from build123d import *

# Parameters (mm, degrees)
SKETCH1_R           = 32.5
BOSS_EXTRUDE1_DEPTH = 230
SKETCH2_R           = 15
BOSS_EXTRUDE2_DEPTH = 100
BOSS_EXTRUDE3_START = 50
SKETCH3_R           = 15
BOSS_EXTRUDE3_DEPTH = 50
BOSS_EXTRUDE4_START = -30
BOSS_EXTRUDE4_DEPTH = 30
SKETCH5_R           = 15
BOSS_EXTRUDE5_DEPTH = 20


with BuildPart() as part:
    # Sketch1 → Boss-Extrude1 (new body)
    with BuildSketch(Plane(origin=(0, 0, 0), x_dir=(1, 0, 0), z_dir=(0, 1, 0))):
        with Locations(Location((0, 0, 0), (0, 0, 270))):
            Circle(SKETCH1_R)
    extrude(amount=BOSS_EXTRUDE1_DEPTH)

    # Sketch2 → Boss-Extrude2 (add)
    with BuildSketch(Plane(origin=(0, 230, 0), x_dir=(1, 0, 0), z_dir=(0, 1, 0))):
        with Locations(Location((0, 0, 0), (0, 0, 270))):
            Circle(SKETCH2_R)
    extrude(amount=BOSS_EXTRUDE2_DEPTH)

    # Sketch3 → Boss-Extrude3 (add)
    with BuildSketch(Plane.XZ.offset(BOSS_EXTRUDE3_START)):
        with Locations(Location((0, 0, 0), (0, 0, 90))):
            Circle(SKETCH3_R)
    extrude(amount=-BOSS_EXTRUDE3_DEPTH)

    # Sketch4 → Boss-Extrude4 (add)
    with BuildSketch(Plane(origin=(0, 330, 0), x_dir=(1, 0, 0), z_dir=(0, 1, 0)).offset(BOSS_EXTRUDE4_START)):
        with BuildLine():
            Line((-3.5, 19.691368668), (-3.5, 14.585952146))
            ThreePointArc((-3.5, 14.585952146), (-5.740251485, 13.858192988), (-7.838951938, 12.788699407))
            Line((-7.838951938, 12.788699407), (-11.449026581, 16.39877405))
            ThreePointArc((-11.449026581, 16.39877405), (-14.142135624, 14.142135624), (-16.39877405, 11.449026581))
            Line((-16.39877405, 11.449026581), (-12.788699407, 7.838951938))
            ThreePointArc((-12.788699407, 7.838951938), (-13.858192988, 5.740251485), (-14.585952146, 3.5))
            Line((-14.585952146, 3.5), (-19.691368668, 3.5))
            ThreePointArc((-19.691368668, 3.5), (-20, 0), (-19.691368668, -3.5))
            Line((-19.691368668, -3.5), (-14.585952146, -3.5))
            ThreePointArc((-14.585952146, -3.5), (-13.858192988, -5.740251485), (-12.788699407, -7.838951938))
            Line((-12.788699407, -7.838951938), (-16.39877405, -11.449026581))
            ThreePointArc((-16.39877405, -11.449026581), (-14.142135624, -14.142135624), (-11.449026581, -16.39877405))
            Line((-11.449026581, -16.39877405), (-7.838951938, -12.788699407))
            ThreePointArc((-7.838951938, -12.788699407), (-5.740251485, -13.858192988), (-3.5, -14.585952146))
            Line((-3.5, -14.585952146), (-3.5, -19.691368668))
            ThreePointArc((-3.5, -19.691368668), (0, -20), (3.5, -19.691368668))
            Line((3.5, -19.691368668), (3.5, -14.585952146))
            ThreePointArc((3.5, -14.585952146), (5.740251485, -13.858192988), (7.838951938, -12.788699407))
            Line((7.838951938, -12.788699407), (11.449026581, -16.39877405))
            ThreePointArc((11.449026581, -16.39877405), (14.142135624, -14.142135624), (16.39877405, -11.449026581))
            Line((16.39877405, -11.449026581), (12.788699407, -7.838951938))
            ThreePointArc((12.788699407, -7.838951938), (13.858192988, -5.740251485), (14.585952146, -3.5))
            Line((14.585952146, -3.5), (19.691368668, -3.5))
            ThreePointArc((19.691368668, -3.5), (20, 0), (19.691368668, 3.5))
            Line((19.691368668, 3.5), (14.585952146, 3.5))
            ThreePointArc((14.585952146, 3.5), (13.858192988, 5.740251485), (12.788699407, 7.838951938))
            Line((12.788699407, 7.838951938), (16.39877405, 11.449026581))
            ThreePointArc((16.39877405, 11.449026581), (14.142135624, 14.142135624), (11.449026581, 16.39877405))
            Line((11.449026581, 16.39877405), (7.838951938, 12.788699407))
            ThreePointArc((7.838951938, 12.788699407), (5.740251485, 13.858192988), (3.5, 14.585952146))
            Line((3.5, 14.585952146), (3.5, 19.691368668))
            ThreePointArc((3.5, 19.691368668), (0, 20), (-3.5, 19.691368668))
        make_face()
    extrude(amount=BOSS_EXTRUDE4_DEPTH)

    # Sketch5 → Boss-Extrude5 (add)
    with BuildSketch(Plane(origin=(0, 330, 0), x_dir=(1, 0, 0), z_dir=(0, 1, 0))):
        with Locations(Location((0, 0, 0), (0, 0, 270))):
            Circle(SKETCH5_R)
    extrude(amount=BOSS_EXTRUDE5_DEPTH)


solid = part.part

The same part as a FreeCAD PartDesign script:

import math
import FreeCAD as App
import Part
import Sketcher
Q = App.Units.Quantity

doc = App.newDocument("Part")
params = doc.addObject("Spreadsheet::Sheet", "Params")
for row, (alias, value) in enumerate([
    ("sketch1_diameter", "65 mm"),
    ("pad1_length", "230 mm"),
    ("sketch2_diameter", "30 mm"),
    ("pad2_length", "100 mm"),
    ("sketch3_diameter", "30 mm"),
    ("pad3_length", "50 mm"),
    ("sketch4_radius", "15 mm"),
    ("sketch4_radius2", "20 mm"),
    ("pad4_length", "30 mm"),
    ("sketch5_diameter", "30 mm"),
    ("pad5_length", "20 mm"),
], start=1):
    params.set(f"A{row}", alias)
    params.set(f"B{row}", "=" + value)
    params.setAlias(f"B{row}", alias)

body = doc.addObject("PartDesign::Body", "Body")

# Sketch on XZ plane
sketch1 = body.newObject("Sketcher::SketchObject", "Sketch")
sketch1.AttachmentSupport = (doc.getObject("XZ_Plane"), [""])
sketch1.MapMode = "FlatFace"
sketch1.addGeometry(Part.Circle(App.Vector(0, 0, 0), App.Vector(0, 0, 1), 32.5), False)
sketch1.addConstraint(Sketcher.Constraint("Coincident", 0, 3, -1, 1))
sketch1.addConstraint(Sketcher.Constraint("Diameter", 0, Q("65 mm")))
sketch1.setExpression("Constraints[1]", "Params.sketch1_diameter")
pad1 = body.newObject("PartDesign::Pad", "Pad")
pad1.Profile = sketch1
pad1.setExpression("Length", "Params.pad1_length")
pad1.Reversed = True

# Sketch on XZ plane
sketch2 = body.newObject("Sketcher::SketchObject", "Sketch001")
sketch2.AttachmentSupport = (doc.getObject("XZ_Plane"), [""])
sketch2.MapMode = "FlatFace"
sketch2.AttachmentOffset = App.Placement(App.Vector(0, 0, -230), App.Rotation())
sketch2.addGeometry(Part.Circle(App.Vector(0, 0, 0), App.Vector(0, 0, 1), 15), False)
sketch2.addConstraint(Sketcher.Constraint("Coincident", 0, 3, -1, 1))
sketch2.addConstraint(Sketcher.Constraint("Diameter", 0, Q("30 mm")))
sketch2.setExpression("Constraints[1]", "Params.sketch2_diameter")
pad2 = body.newObject("PartDesign::Pad", "Pad001")
pad2.Profile = sketch2
pad2.setExpression("Length", "Params.pad2_length")
pad2.Reversed = True

# Sketch on XZ plane
sketch3 = body.newObject("Sketcher::SketchObject", "Sketch002")
sketch3.AttachmentSupport = (doc.getObject("XZ_Plane"), [""])
sketch3.MapMode = "FlatFace"
sketch3.AttachmentOffset = App.Placement(App.Vector(0, 0, 50), App.Rotation())
sketch3.addGeometry(Part.Circle(App.Vector(0, 0, 0), App.Vector(0, 0, 1), 15), False)
sketch3.addConstraint(Sketcher.Constraint("Coincident", 0, 3, -1, 1))
sketch3.addConstraint(Sketcher.Constraint("Diameter", 0, Q("30 mm")))
sketch3.setExpression("Constraints[1]", "Params.sketch3_diameter")
pad3 = body.newObject("PartDesign::Pad", "Pad002")
pad3.Profile = sketch3
pad3.setExpression("Length", "Params.pad3_length")
pad3.Reversed = True

# Sketch on XZ plane
sketch4 = body.newObject("Sketcher::SketchObject", "Sketch003")
sketch4.AttachmentSupport = (doc.getObject("XZ_Plane"), [""])
sketch4.MapMode = "FlatFace"
sketch4.AttachmentOffset = App.Placement(App.Vector(0, 0, -300), App.Rotation())
sketch4.addGeometry(Part.LineSegment(App.Vector(-3.5, -19.691369, 0), App.Vector(-3.5, -14.585952, 0)), False)
sketch4.addGeometry(Part.ArcOfCircle(Part.Circle(App.Vector(0, 0, 0), App.Vector(0, 0, 1), 15), math.radians(-121.506601), math.radians(-103.493399)), False)
sketch4.addGeometry(Part.LineSegment(App.Vector(-7.838952, -12.788699, 0), App.Vector(-11.449027, -16.398774, 0)), False)
sketch4.addGeometry(Part.ArcOfCircle(Part.Circle(App.Vector(0, 0, 0), App.Vector(0, 0, 1), 20), math.radians(-145.078658), math.radians(-124.921342)), False)
sketch4.addGeometry(Part.LineSegment(App.Vector(-16.398774, -11.449027, 0), App.Vector(-12.788699, -7.838952, 0)), False)
sketch4.addGeometry(Part.ArcOfCircle(Part.Circle(App.Vector(0, 0, 0), App.Vector(0, 0, 1), 15), math.radians(-166.506601), math.radians(-148.493399)), False)
sketch4.addGeometry(Part.LineSegment(App.Vector(-14.585952, -3.5, 0), App.Vector(-19.691369, -3.5, 0)), False)
sketch4.addGeometry(Part.ArcOfCircle(Part.Circle(App.Vector(0, 0, 0), App.Vector(0, 0, 1), 20), math.radians(169.921342), math.radians(190.078658)), False)
sketch4.addGeometry(Part.LineSegment(App.Vector(-19.691369, 3.5, 0), App.Vector(-14.585952, 3.5, 0)), False)
sketch4.addGeometry(Part.ArcOfCircle(Part.Circle(App.Vector(0, 0, 0), App.Vector(0, 0, 1), 15), math.radians(148.493399), math.radians(166.506601)), False)
sketch4.addGeometry(Part.LineSegment(App.Vector(-12.788699, 7.838952, 0), App.Vector(-16.398774, 11.449027, 0)), False)
sketch4.addGeometry(Part.ArcOfCircle(Part.Circle(App.Vector(0, 0, 0), App.Vector(0, 0, 1), 20), math.radians(124.921342), math.radians(145.078658)), False)
sketch4.addGeometry(Part.LineSegment(App.Vector(-11.449027, 16.398774, 0), App.Vector(-7.838952, 12.788699, 0)), False)
sketch4.addGeometry(Part.ArcOfCircle(Part.Circle(App.Vector(0, 0, 0), App.Vector(0, 0, 1), 15), math.radians(103.493399), math.radians(121.506601)), False)
sketch4.addGeometry(Part.LineSegment(App.Vector(-3.5, 14.585952, 0), App.Vector(-3.5, 19.691369, 0)), False)
sketch4.addGeometry(Part.ArcOfCircle(Part.Circle(App.Vector(0, 0, 0), App.Vector(0, 0, 1), 20), math.radians(79.921342), math.radians(100.078658)), False)
sketch4.addGeometry(Part.LineSegment(App.Vector(3.5, 19.691369, 0), App.Vector(3.5, 14.585952, 0)), False)
sketch4.addGeometry(Part.ArcOfCircle(Part.Circle(App.Vector(0, 0, 0), App.Vector(0, 0, 1), 15), math.radians(58.493399), math.radians(76.506601)), False)
sketch4.addGeometry(Part.LineSegment(App.Vector(7.838952, 12.788699, 0), App.Vector(11.449027, 16.398774, 0)), False)
sketch4.addGeometry(Part.ArcOfCircle(Part.Circle(App.Vector(0, 0, 0), App.Vector(0, 0, 1), 20), math.radians(34.921342), math.radians(55.078658)), False)
sketch4.addGeometry(Part.LineSegment(App.Vector(16.398774, 11.449027, 0), App.Vector(12.788699, 7.838952, 0)), False)
sketch4.addGeometry(Part.ArcOfCircle(Part.Circle(App.Vector(0, 0, 0), App.Vector(0, 0, 1), 15), math.radians(13.493399), math.radians(31.506601)), False)
sketch4.addGeometry(Part.LineSegment(App.Vector(14.585952, 3.5, 0), App.Vector(19.691369, 3.5, 0)), False)
sketch4.addGeometry(Part.ArcOfCircle(Part.Circle(App.Vector(0, 0, 0), App.Vector(0, 0, 1), 20), math.radians(-10.078658), math.radians(10.078658)), False)
sketch4.addGeometry(Part.LineSegment(App.Vector(19.691369, -3.5, 0), App.Vector(14.585952, -3.5, 0)), False)
sketch4.addGeometry(Part.ArcOfCircle(Part.Circle(App.Vector(0, 0, 0), App.Vector(0, 0, 1), 15), math.radians(-31.506601), math.radians(-13.493399)), False)
sketch4.addGeometry(Part.LineSegment(App.Vector(12.788699, -7.838952, 0), App.Vector(16.398774, -11.449027, 0)), False)
sketch4.addGeometry(Part.ArcOfCircle(Part.Circle(App.Vector(0, 0, 0), App.Vector(0, 0, 1), 20), math.radians(-55.078658), math.radians(-34.921342)), False)
sketch4.addGeometry(Part.LineSegment(App.Vector(11.449027, -16.398774, 0), App.Vector(7.838952, -12.788699, 0)), False)
sketch4.addGeometry(Part.ArcOfCircle(Part.Circle(App.Vector(0, 0, 0), App.Vector(0, 0, 1), 15), math.radians(-76.506601), math.radians(-58.493399)), False)
sketch4.addGeometry(Part.LineSegment(App.Vector(3.5, -14.585952, 0), App.Vector(3.5, -19.691369, 0)), False)
sketch4.addGeometry(Part.ArcOfCircle(Part.Circle(App.Vector(0, 0, 0), App.Vector(0, 0, 1), 20), math.radians(-100.078658), math.radians(-79.921342)), False)
sketch4.addConstraint(Sketcher.Constraint("Coincident", 0, 2, 1, 2))
sketch4.addConstraint(Sketcher.Constraint("Coincident", 1, 1, 2, 1))
sketch4.addConstraint(Sketcher.Constraint("Coincident", 2, 2, 3, 2))
sketch4.addConstraint(Sketcher.Constraint("Coincident", 3, 1, 4, 1))
sketch4.addConstraint(Sketcher.Constraint("Coincident", 4, 2, 5, 2))
sketch4.addConstraint(Sketcher.Constraint("Coincident", 5, 1, 6, 1))
sketch4.addConstraint(Sketcher.Constraint("Coincident", 6, 2, 7, 2))
sketch4.addConstraint(Sketcher.Constraint("Coincident", 7, 1, 8, 1))
sketch4.addConstraint(Sketcher.Constraint("Coincident", 8, 2, 9, 2))
sketch4.addConstraint(Sketcher.Constraint("Coincident", 9, 1, 10, 1))
sketch4.addConstraint(Sketcher.Constraint("Coincident", 10, 2, 11, 2))
sketch4.addConstraint(Sketcher.Constraint("Coincident", 11, 1, 12, 1))
sketch4.addConstraint(Sketcher.Constraint("Coincident", 12, 2, 13, 2))
sketch4.addConstraint(Sketcher.Constraint("Coincident", 13, 1, 14, 1))
sketch4.addConstraint(Sketcher.Constraint("Coincident", 14, 2, 15, 2))
sketch4.addConstraint(Sketcher.Constraint("Coincident", 15, 1, 16, 1))
sketch4.addConstraint(Sketcher.Constraint("Coincident", 16, 2, 17, 2))
sketch4.addConstraint(Sketcher.Constraint("Coincident", 17, 1, 18, 1))
sketch4.addConstraint(Sketcher.Constraint("Coincident", 18, 2, 19, 2))
sketch4.addConstraint(Sketcher.Constraint("Coincident", 19, 1, 20, 1))
sketch4.addConstraint(Sketcher.Constraint("Coincident", 20, 2, 21, 2))
sketch4.addConstraint(Sketcher.Constraint("Coincident", 21, 1, 22, 1))
sketch4.addConstraint(Sketcher.Constraint("Coincident", 22, 2, 23, 2))
sketch4.addConstraint(Sketcher.Constraint("Coincident", 23, 1, 24, 1))
sketch4.addConstraint(Sketcher.Constraint("Coincident", 24, 2, 25, 2))
sketch4.addConstraint(Sketcher.Constraint("Coincident", 25, 1, 26, 1))
sketch4.addConstraint(Sketcher.Constraint("Coincident", 26, 2, 27, 2))
sketch4.addConstraint(Sketcher.Constraint("Coincident", 27, 1, 28, 1))
sketch4.addConstraint(Sketcher.Constraint("Coincident", 28, 2, 29, 2))
sketch4.addConstraint(Sketcher.Constraint("Coincident", 29, 1, 30, 1))
sketch4.addConstraint(Sketcher.Constraint("Coincident", 30, 2, 31, 2))
sketch4.addConstraint(Sketcher.Constraint("Coincident", 31, 1, 0, 1))
sketch4.addConstraint(Sketcher.Constraint("Vertical", 0))
sketch4.addConstraint(Sketcher.Constraint("Horizontal", 6))
sketch4.addConstraint(Sketcher.Constraint("Horizontal", 8))
sketch4.addConstraint(Sketcher.Constraint("Vertical", 14))
sketch4.addConstraint(Sketcher.Constraint("Vertical", 16))
sketch4.addConstraint(Sketcher.Constraint("Horizontal", 22))
sketch4.addConstraint(Sketcher.Constraint("Horizontal", 24))
sketch4.addConstraint(Sketcher.Constraint("Vertical", 30))
sketch4.addConstraint(Sketcher.Constraint("Coincident", 1, 3, -1, 1))
sketch4.addConstraint(Sketcher.Constraint("Coincident", 3, 3, -1, 1))
sketch4.addConstraint(Sketcher.Constraint("Coincident", 5, 3, -1, 1))
sketch4.addConstraint(Sketcher.Constraint("Coincident", 7, 3, -1, 1))
sketch4.addConstraint(Sketcher.Constraint("Coincident", 9, 3, -1, 1))
sketch4.addConstraint(Sketcher.Constraint("Coincident", 11, 3, -1, 1))
sketch4.addConstraint(Sketcher.Constraint("Coincident", 13, 3, -1, 1))
sketch4.addConstraint(Sketcher.Constraint("Coincident", 15, 3, -1, 1))
sketch4.addConstraint(Sketcher.Constraint("Coincident", 17, 3, -1, 1))
sketch4.addConstraint(Sketcher.Constraint("Coincident", 19, 3, -1, 1))
sketch4.addConstraint(Sketcher.Constraint("Coincident", 21, 3, -1, 1))
sketch4.addConstraint(Sketcher.Constraint("Coincident", 23, 3, -1, 1))
sketch4.addConstraint(Sketcher.Constraint("Coincident", 25, 3, -1, 1))
sketch4.addConstraint(Sketcher.Constraint("Coincident", 27, 3, -1, 1))
sketch4.addConstraint(Sketcher.Constraint("Coincident", 29, 3, -1, 1))
sketch4.addConstraint(Sketcher.Constraint("Coincident", 31, 3, -1, 1))
sketch4.addConstraint(Sketcher.Constraint("Equal", 1, 5))
sketch4.addConstraint(Sketcher.Constraint("Equal", 3, 7))
sketch4.addConstraint(Sketcher.Constraint("Equal", 5, 9))
sketch4.addConstraint(Sketcher.Constraint("Equal", 7, 11))
sketch4.addConstraint(Sketcher.Constraint("Equal", 9, 13))
sketch4.addConstraint(Sketcher.Constraint("Equal", 11, 15))
sketch4.addConstraint(Sketcher.Constraint("Equal", 13, 17))
sketch4.addConstraint(Sketcher.Constraint("Equal", 15, 19))
sketch4.addConstraint(Sketcher.Constraint("Equal", 17, 21))
sketch4.addConstraint(Sketcher.Constraint("Equal", 19, 23))
sketch4.addConstraint(Sketcher.Constraint("Equal", 21, 25))
sketch4.addConstraint(Sketcher.Constraint("Equal", 23, 27))
sketch4.addConstraint(Sketcher.Constraint("Equal", 25, 29))
sketch4.addConstraint(Sketcher.Constraint("Equal", 27, 31))
sketch4.addConstraint(Sketcher.Constraint("Parallel", 2, 4))
sketch4.addConstraint(Sketcher.Constraint("Perpendicular", 4, 10))
sketch4.addConstraint(Sketcher.Constraint("Parallel", 10, 12))
sketch4.addConstraint(Sketcher.Constraint("Perpendicular", 12, 18))
sketch4.addConstraint(Sketcher.Constraint("Parallel", 18, 20))
sketch4.addConstraint(Sketcher.Constraint("Perpendicular", 20, 26))
sketch4.addConstraint(Sketcher.Constraint("Parallel", 26, 28))
sketch4.addConstraint(Sketcher.Constraint("Horizontal", 14, 2, 15, 1))
sketch4.addConstraint(Sketcher.Constraint("Horizontal", 12, 2, 17, 1))
sketch4.addConstraint(Sketcher.Constraint("Horizontal", 11, 1, 18, 2))
sketch4.addConstraint(Sketcher.Constraint("Horizontal", 10, 2, 19, 1))
sketch4.addConstraint(Sketcher.Constraint("Horizontal", 8, 2, 21, 1))
sketch4.addConstraint(Sketcher.Constraint("Horizontal", 6, 2, 23, 1))
sketch4.addConstraint(Sketcher.Constraint("Horizontal", 4, 2, 25, 1))
sketch4.addConstraint(Sketcher.Constraint("Horizontal", 2, 2, 27, 1))
sketch4.addConstraint(Sketcher.Constraint("Horizontal", 0, 2, 29, 1))
sketch4.addConstraint(Sketcher.Constraint("Vertical", 6, 2, 7, 1))
sketch4.addConstraint(Sketcher.Constraint("Vertical", 4, 2, 9, 1))
sketch4.addConstraint(Sketcher.Constraint("Vertical", 2, 2, 11, 1))
sketch4.addConstraint(Sketcher.Constraint("Vertical", 0, 2, 13, 1))
sketch4.addConstraint(Sketcher.Constraint("Equal", 24, 0))
sketch4.addConstraint(Sketcher.Constraint("Equal", 2, 4))
sketch4.addConstraint(Sketcher.Constraint("Radius", 1, Q("15 mm")))
sketch4.addConstraint(Sketcher.Constraint("Radius", 3, Q("20 mm")))
sketch4.addConstraint(Sketcher.Constraint("DistanceY", 6, 2, 7, 1, Q("7 mm")))
sketch4.addConstraint(Sketcher.Constraint("DistanceY", 0, 2, 4, 2, Q("6.747 mm")))
sketch4.setExpression("Constraints[92]", "Params.sketch4_radius")
sketch4.setExpression("Constraints[93]", "Params.sketch4_radius2")
pad4 = body.newObject("PartDesign::Pad", "Pad003")
pad4.Profile = sketch4
pad4.setExpression("Length", "Params.pad4_length")
pad4.Reversed = True

# Sketch on XZ plane
sketch5 = body.newObject("Sketcher::SketchObject", "Sketch004")
sketch5.AttachmentSupport = (doc.getObject("XZ_Plane"), [""])
sketch5.MapMode = "FlatFace"
sketch5.AttachmentOffset = App.Placement(App.Vector(0, 0, -330), App.Rotation())
sketch5.addGeometry(Part.Circle(App.Vector(0, 0, 0), App.Vector(0, 0, 1), 15), False)
sketch5.addConstraint(Sketcher.Constraint("Coincident", 0, 3, -1, 1))
sketch5.addConstraint(Sketcher.Constraint("Diameter", 0, Q("30 mm")))
sketch5.setExpression("Constraints[1]", "Params.sketch5_diameter")
pad5 = body.newObject("PartDesign::Pad", "Pad004")
pad5.Profile = sketch5
pad5.setExpression("Length", "Params.pad5_length")
pad5.Reversed = True

doc.recompute()
